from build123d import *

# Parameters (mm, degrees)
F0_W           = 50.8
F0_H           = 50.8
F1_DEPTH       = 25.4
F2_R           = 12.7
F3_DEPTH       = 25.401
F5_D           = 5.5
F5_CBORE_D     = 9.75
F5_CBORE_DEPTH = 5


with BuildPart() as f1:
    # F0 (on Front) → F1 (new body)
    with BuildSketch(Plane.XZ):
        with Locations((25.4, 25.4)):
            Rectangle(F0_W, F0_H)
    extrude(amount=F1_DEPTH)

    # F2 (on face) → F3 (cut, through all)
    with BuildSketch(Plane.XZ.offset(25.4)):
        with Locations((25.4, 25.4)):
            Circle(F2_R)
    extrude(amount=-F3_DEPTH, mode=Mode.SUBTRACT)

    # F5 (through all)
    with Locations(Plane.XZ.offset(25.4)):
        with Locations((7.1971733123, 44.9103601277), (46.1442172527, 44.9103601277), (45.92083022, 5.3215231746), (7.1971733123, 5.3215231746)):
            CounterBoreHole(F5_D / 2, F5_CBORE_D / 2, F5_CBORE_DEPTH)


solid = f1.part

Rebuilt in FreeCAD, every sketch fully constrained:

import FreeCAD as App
import Part
import Sketcher

V = App.Vector
Q = App.Units.Quantity


def add_polygon(sketch, points):
    """Adds a closed chain of lines whose ends are joined by coincident constraints."""
    first, n = sketch.GeometryCount, len(points)
    for a, b in zip(points, points[1:] + points[:1]):
        sketch.addGeometry(Part.LineSegment(App.Vector(*a, 0), App.Vector(*b, 0)), False)
    for i in range(n):
        sketch.addConstraint(Sketcher.Constraint("Coincident", first + i, 2, first + (i + 1) % n, 1))

doc = App.newDocument("Part")
body = doc.addObject("PartDesign::Body", "Body")

# Sketch on XZ plane
sketch1 = body.newObject("Sketcher::SketchObject", "Sketch")
sketch1.AttachmentSupport = (doc.getObject("XZ_Plane"), [""])
sketch1.MapMode = "FlatFace"
add_polygon(sketch1, [(0, 51), (0, 0), (51, 0), (51, 51)])  # lines 0-3
sketch1.addConstraint([
    Sketcher.Constraint("Vertical", 0),
    Sketcher.Constraint("Horizontal", 1),
    Sketcher.Constraint("Vertical", 2),
    Sketcher.Constraint("Horizontal", 3),
    Sketcher.Constraint("Coincident", 0, 2, -1, 1),
    Sketcher.Constraint("Equal", 3, 0),
    Sketcher.Constraint("DistanceX", 1, 1, 1, 2, Q("2 in")),
])
pad1 = body.newObject("PartDesign::Pad", "Pad")
pad1.Profile = sketch1
pad1.Length = Q("1 in")

# Sketch on XZ plane
sketch2 = body.newObject("Sketcher::SketchObject", "Sketch001")
sketch2.AttachmentSupport = (doc.getObject("XZ_Plane"), [""])
sketch2.MapMode = "FlatFace"
sketch2.AttachmentOffset = App.Placement(V(0, 0, 1 * 25.4), App.Rotation())
sketch2.addGeometry(Part.Circle(V(25, 25, 0), V(0, 0, 1), 13), False)
sketch2.addConstraint([
    Sketcher.Constraint("Diameter", 0, Q("1 in")),
    Sketcher.Constraint("DistanceX", -1, 1, 0, 3, Q("1 in")),
    Sketcher.Constraint("DistanceY", -1, 1, 0, 3, Q("1 in")),
])
pocket1 = body.newObject("PartDesign::Pocket", "Pocket")
pocket1.Profile = sketch2
pocket1.Type = "ThroughAll"

# Sketch on XZ plane
sketch3 = body.newObject("Sketcher::SketchObject", "Sketch002")
sketch3.AttachmentSupport = (doc.getObject("XZ_Plane"), [""])
sketch3.MapMode = "FlatFace"
sketch3.AttachmentOffset = App.Placement(V(0, 0, 1 * 25.4), App.Rotation())
sketch3.addGeometry([
    Part.Circle(V(7.2, 44.9, 0), V(0, 0, 1), 2.8),
    Part.Circle(V(46.1, 44.9, 0), V(0, 0, 1), 2.8),
    Part.Circle(V(45.9, 5.3, 0), V(0, 0, 1), 2.8),
    Part.Circle(V(7.2, 5.3, 0), V(0, 0, 1), 2.8),
], False)
sketch3.addConstraint([
    Sketcher.Constraint("Equal", 0, 1),
    Sketcher.Constraint("Equal", 1, 2),
    Sketcher.Constraint("Equal", 2, 3),
    Sketcher.Constraint("Horizontal", 0, 3, 1, 3),
    Sketcher.Constraint("Horizontal", 2, 3, 3, 3),
    Sketcher.Constraint("Vertical", 0, 3, 3, 3),
    Sketcher.Constraint("Diameter", 0, 5.5),
    Sketcher.Constraint("DistanceY", -1, 1, 0, 3, 44.91036),
    Sketcher.Constraint("DistanceX", -1, 1, 2, 3, 45.92083),
    Sketcher.Constraint("DistanceX", -1, 1, 0, 3, 7.197173),
    Sketcher.Constraint("DistanceX", -1, 1, 1, 3, 46.144217),
    Sketcher.Constraint("DistanceY", -1, 1, 2, 3, 5.321523),
])
doc.recompute()
hole = body.newObject("PartDesign::Hole", "Hole")
hole.Profile = sketch3
hole.ThreadType = "None"
hole.Diameter = 5.5
hole.DepthType = "ThroughAll"
hole.HoleCutType = "Counterbore"
hole.HoleCutDiameter = 9.75
hole.HoleCutDepth = 5

doc.recompute()
